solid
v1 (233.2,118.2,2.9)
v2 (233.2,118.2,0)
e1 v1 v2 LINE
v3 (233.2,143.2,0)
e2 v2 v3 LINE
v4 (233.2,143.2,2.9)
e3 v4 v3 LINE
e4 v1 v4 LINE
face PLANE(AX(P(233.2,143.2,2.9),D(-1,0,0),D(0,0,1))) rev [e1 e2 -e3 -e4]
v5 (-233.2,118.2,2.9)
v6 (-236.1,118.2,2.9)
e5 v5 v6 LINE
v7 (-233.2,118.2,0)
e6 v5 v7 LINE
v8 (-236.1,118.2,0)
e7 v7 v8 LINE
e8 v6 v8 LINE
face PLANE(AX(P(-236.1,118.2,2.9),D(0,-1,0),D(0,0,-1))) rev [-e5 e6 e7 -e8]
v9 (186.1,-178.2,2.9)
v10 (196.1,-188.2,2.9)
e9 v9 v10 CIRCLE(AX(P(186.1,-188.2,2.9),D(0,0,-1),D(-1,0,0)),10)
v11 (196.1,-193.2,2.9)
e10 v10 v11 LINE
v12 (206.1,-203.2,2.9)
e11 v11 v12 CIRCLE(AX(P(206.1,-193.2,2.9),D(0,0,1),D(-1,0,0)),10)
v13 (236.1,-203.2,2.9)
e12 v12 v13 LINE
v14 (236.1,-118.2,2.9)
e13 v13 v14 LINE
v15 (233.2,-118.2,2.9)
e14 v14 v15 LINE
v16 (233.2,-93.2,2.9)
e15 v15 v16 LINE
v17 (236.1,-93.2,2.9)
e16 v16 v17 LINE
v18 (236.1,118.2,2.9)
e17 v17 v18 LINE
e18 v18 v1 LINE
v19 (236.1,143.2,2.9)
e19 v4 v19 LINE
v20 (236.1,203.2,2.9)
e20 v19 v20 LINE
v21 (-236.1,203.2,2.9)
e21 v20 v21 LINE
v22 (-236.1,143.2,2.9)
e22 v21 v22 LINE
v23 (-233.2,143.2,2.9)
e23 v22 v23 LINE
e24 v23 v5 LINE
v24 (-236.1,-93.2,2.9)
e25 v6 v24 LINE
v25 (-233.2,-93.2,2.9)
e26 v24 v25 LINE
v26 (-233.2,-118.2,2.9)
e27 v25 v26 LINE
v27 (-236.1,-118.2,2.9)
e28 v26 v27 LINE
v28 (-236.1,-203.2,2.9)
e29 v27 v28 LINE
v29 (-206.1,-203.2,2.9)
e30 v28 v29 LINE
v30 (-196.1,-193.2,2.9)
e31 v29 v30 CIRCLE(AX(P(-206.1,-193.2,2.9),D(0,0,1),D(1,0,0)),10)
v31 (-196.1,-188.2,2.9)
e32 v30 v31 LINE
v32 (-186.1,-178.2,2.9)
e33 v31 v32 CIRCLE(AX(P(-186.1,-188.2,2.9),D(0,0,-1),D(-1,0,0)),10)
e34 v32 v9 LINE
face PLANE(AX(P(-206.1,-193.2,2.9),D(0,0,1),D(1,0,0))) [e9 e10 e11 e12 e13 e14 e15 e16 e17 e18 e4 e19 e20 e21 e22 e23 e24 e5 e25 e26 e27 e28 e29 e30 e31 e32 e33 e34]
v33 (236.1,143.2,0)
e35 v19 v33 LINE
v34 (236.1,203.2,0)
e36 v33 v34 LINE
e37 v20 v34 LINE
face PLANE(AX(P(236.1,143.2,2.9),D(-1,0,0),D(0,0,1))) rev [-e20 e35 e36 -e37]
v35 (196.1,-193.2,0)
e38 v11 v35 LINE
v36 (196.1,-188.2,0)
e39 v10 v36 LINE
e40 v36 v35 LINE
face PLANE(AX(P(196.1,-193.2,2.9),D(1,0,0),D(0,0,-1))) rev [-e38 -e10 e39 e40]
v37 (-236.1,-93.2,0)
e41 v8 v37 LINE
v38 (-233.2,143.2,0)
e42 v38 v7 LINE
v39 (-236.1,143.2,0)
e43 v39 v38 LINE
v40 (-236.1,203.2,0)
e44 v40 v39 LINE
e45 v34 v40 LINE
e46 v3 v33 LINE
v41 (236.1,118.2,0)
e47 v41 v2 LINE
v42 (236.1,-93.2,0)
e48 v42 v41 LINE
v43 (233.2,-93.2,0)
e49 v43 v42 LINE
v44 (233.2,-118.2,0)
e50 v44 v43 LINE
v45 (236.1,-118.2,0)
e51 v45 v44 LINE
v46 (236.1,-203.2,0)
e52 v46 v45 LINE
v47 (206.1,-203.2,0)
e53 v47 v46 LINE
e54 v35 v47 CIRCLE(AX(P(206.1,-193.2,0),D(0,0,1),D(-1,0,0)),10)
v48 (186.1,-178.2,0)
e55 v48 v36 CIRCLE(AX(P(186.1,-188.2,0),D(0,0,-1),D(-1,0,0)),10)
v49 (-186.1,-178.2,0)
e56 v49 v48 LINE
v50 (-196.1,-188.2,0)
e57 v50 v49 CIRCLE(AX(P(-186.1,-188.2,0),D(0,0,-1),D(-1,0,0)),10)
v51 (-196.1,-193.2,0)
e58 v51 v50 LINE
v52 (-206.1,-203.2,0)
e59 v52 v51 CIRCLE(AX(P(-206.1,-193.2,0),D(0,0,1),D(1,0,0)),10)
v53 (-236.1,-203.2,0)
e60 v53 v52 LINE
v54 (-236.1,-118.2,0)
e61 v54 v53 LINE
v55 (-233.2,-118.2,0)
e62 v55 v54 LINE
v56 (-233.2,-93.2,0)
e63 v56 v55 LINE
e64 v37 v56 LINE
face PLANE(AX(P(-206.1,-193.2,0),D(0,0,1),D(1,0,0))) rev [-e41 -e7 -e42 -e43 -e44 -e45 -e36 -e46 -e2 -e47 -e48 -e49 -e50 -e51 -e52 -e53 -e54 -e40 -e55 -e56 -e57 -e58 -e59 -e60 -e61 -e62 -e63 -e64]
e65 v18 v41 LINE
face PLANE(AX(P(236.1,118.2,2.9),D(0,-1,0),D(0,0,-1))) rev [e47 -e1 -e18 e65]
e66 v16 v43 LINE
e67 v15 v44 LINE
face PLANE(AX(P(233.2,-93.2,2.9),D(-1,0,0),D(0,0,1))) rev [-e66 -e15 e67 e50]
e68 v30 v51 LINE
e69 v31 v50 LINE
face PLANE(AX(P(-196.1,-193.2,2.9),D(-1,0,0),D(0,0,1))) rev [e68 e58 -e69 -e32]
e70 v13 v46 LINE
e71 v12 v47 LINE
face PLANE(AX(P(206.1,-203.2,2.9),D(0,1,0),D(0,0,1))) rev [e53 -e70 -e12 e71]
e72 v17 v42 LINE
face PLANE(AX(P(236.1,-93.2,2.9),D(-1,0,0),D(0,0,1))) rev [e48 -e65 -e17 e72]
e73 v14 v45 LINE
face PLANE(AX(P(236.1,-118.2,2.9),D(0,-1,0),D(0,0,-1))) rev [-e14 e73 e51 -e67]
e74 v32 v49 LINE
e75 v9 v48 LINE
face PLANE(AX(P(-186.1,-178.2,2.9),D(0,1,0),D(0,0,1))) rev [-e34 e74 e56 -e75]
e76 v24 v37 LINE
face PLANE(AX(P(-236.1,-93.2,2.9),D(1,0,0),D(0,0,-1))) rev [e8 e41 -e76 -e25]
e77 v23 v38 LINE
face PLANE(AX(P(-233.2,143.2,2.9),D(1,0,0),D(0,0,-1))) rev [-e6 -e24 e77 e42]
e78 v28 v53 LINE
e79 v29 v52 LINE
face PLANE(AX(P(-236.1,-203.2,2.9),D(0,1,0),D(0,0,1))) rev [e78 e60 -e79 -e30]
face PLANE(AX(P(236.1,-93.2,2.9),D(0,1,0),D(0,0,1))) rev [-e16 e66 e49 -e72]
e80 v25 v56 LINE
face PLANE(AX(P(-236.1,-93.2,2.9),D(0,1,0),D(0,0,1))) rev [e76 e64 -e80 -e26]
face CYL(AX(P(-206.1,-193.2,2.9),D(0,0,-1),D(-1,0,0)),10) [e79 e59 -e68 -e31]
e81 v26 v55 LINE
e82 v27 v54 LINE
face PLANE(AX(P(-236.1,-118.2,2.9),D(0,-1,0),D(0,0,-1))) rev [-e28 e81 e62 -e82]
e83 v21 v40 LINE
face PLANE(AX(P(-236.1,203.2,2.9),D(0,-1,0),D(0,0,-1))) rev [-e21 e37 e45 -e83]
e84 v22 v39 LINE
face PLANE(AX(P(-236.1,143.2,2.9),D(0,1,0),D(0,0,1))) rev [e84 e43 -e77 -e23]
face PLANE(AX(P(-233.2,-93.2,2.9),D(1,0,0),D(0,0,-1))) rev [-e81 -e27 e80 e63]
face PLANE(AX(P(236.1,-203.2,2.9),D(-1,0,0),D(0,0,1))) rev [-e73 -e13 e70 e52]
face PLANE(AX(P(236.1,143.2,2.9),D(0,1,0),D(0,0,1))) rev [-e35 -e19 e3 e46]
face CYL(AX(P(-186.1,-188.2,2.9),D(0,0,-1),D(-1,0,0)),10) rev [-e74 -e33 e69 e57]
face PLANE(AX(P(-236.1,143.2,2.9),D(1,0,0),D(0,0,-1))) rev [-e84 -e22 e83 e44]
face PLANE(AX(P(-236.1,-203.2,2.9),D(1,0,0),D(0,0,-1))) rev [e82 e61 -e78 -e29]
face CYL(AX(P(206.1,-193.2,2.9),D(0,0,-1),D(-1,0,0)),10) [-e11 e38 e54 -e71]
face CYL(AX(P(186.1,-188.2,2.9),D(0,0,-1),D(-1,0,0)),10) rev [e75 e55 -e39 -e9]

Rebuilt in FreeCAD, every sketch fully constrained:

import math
import FreeCAD as App
import Part
import Sketcher
from FreeCAD import Vector

doc = App.newDocument("Part")
params = doc.addObject("Spreadsheet::Sheet", "Params")
for row, (alias, value) in enumerate([
    ("sketch1_radius", "10 mm"),
    ("sketch1_width", "30 mm"),
    ("sketch1_height", "85 mm"),
    ("sketch1_height2", "25 mm"),
    ("sketch1_height3", "5 mm"),
    ("pad1_length", "2.9 mm"),
], start=1):
    params.set(f"A{row}", alias)
    params.set(f"B{row}", "=" + value)
    params.setAlias(f"B{row}", alias)

body = doc.addObject("PartDesign::Body", "Body")

sketch1 = body.newObject("Sketcher::SketchObject", "Sketch")
sketch1.AttachmentSupport = (doc.getObject("XY_Plane"), [""])
sketch1.MapMode = "FlatFace"
sketch1.addGeometry([
    Part.LineSegment(Vector(206.1, -203.2, 0), Vector(236.1, -203.2, 0)),
    Part.LineSegment(Vector(236.1, -203.2, 0), Vector(236.1, -118.2, 0)),
    Part.LineSegment(Vector(236.1, -118.2, 0), Vector(233.2, -118.2, 0)),
    Part.LineSegment(Vector(233.2, -118.2, 0), Vector(233.2, -93.2, 0)),
    Part.LineSegment(Vector(233.2, -93.2, 0), Vector(236.1, -93.2, 0)),
    Part.LineSegment(Vector(236.1, -93.2, 0), Vector(236.1, 118.2, 0)),
    Part.LineSegment(Vector(236.1, 118.2, 0), Vector(233.2, 118.2, 0)),
    Part.LineSegment(Vector(233.2, 118.2, 0), Vector(233.2, 143.2, 0)),
    Part.LineSegment(Vector(233.2, 143.2, 0), Vector(236.1, 143.2, 0)),
    Part.LineSegment(Vector(236.1, 143.2, 0), Vector(236.1, 203.2, 0)),
    Part.LineSegment(Vector(236.1, 203.2, 0), Vector(-236.1, 203.2, 0)),
    Part.LineSegment(Vector(-236.1, 203.2, 0), Vector(-236.1, 143.2, 0)),
    Part.LineSegment(Vector(-236.1, 143.2, 0), Vector(-233.2, 143.2, 0)),
    Part.LineSegment(Vector(-233.2, 143.2, 0), Vector(-233.2, 118.2, 0)),
    Part.LineSegment(Vector(-233.2, 118.2, 0), Vector(-236.1, 118.2, 0)),
    Part.LineSegment(Vector(-236.1, 118.2, 0), Vector(-236.1, -93.2, 0)),
    Part.LineSegment(Vector(-236.1, -93.2, 0), Vector(-233.2, -93.2, 0)),
    Part.LineSegment(Vector(-233.2, -93.2, 0), Vector(-233.2, -118.2, 0)),
    Part.LineSegment(Vector(-233.2, -118.2, 0), Vector(-236.1, -118.2, 0)),
    Part.LineSegment(Vector(-236.1, -118.2, 0), Vector(-236.1, -203.2, 0)),
    Part.LineSegment(Vector(-236.1, -203.2, 0), Vector(-206.1, -203.2, 0)),
    Part.ArcOfCircle(Part.Circle(Vector(-206.1, -193.2, 0), Vector(0, 0, 1), 10), math.radians(-90), math.radians(0)),
    Part.LineSegment(Vector(-196.1, -193.2, 0), Vector(-196.1, -188.2, 0)),
    Part.ArcOfCircle(Part.Circle(Vector(-186.1, -188.2, 0), Vector(0, 0, 1), 10), math.radians(90), math.radians(180)),
    Part.LineSegment(Vector(-186.1, -178.2, 0), Vector(186.1, -178.2, 0)),
    Part.ArcOfCircle(Part.Circle(Vector(186.1, -188.2, 0), Vector(0, 0, 1), 10), math.radians(0), math.radians(90)),
    Part.LineSegment(Vector(196.1, -188.2, 0), Vector(196.1, -193.2, 0)),
    Part.ArcOfCircle(Part.Circle(Vector(206.1, -193.2, 0), Vector(0, 0, 1), 10), math.radians(180), math.radians(270)),
], False)
sketch1.addConstraint([
    Sketcher.Constraint("Coincident", 0, 2, 1, 1),
    Sketcher.Constraint("Coincident", 1, 2, 2, 1),
    Sketcher.Constraint("Coincident", 2, 2, 3, 1),
    Sketcher.Constraint("Coincident", 3, 2, 4, 1),
    Sketcher.Constraint("Coincident", 4, 2, 5, 1),
    Sketcher.Constraint("Coincident", 5, 2, 6, 1),
    Sketcher.Constraint("Coincident", 6, 2, 7, 1),
    Sketcher.Constraint("Coincident", 7, 2, 8, 1),
    Sketcher.Constraint("Coincident", 8, 2, 9, 1),
    Sketcher.Constraint("Coincident", 9, 2, 10, 1),
    Sketcher.Constraint("Coincident", 10, 2, 11, 1),
    Sketcher.Constraint("Coincident", 11, 2, 12, 1),
    Sketcher.Constraint("Coincident", 12, 2, 13, 1),
    Sketcher.Constraint("Coincident", 13, 2, 14, 1),
    Sketcher.Constraint("Coincident", 14, 2, 15, 1),
    Sketcher.Constraint("Coincident", 15, 2, 16, 1),
    Sketcher.Constraint("Coincident", 16, 2, 17, 1),
    Sketcher.Constraint("Coincident", 17, 2, 18, 1),
    Sketcher.Constraint("Coincident", 18, 2, 19, 1),
    Sketcher.Constraint("Coincident", 19, 2, 20, 1),
    Sketcher.Constraint("Tangent", 20, 2, 21, 1),
    Sketcher.Constraint("Tangent", 21, 2, 22, 1),
    Sketcher.Constraint("Tangent", 22, 2, 23, 2),
    Sketcher.Constraint("Tangent", 23, 1, 24, 1),
    Sketcher.Constraint("Tangent", 24, 2, 25, 2),
    Sketcher.Constraint("Tangent", 25, 1, 26, 1),
    Sketcher.Constraint("Tangent", 26, 2, 27, 1),
    Sketcher.Constraint("Tangent", 27, 2, 0, 1),
    Sketcher.Constraint("Horizontal", 0),
    Sketcher.Constraint("Vertical", 1),
    Sketcher.Constraint("Horizontal", 2),
    Sketcher.Constraint("Vertical", 3),
    Sketcher.Constraint("Horizontal", 4),
    Sketcher.Constraint("Vertical", 5),
    Sketcher.Constraint("Horizontal", 6),
    Sketcher.Constraint("Vertical", 7),
    Sketcher.Constraint("Horizontal", 8),
    Sketcher.Constraint("Vertical", 9),
    Sketcher.Constraint("Horizontal", 10),
    Sketcher.Constraint("Vertical", 11),
    Sketcher.Constraint("Horizontal", 12),
    Sketcher.Constraint("Vertical", 13),
    Sketcher.Constraint("Horizontal", 14),
    Sketcher.Constraint("Vertical", 15),
    Sketcher.Constraint("Horizontal", 16),
    Sketcher.Constraint("Vertical", 17),
    Sketcher.Constraint("Horizontal", 18),
    Sketcher.Constraint("Vertical", 19),
    Sketcher.Constraint("Horizontal", 20),
    Sketcher.Constraint("Vertical", 22),
    Sketcher.Constraint("Horizontal", 24),
    Sketcher.Constraint("Vertical", 26),
    Sketcher.Constraint("Equal", 21, 23),
    Sketcher.Constraint("Equal", 23, 25),
    Sketcher.Constraint("Equal", 25, 27),
    Sketcher.Constraint("Symmetric", 0, 2, 10, 2, -1, 1),
    Sketcher.Constraint("Symmetric", 2, 2, 13, 2, -1, 1),
    Sketcher.Constraint("Symmetric", 6, 2, 17, 2, -1, 1),
    Sketcher.Constraint("Symmetric", 9, 2, 19, 2, -1, 1),
    Sketcher.Constraint("Symmetric", 8, 2, 11, 2, -2),
    Sketcher.Constraint("Symmetric", 6, 2, 13, 2, -2),
    Sketcher.Constraint("Symmetric", 4, 2, 15, 2, -2),
    Sketcher.Constraint("Vertical", 1, 2, 4, 2),
    Sketcher.Constraint("Equal", 0, 20),
    Sketcher.Constraint("Equal", 3, 7),
    Sketcher.Constraint("Radius", 21, 10.0),
    Sketcher.Constraint("DistanceX", 0, 1, 0, 2, 30.0),
    Sketcher.Constraint("DistanceY", 1, 1, 1, 2, 85.0),
    Sketcher.Constraint("DistanceY", 3, 1, 3, 2, 25.0),
    Sketcher.Constraint("DistanceY", 22, 1, 22, 2, 5.0),
    Sketcher.Constraint("DistanceX", 2, 2, 2, 1, 2.9),
    Sketcher.Constraint("DistanceX", 10, 2, 10, 1, 472.2),
    Sketcher.Constraint("DistanceY", 5, 1, 5, 2, 211.4),
])
sketch1.setExpression("Constraints[65]", "Params.sketch1_radius")
sketch1.setExpression("Constraints[66]", "Params.sketch1_width")
sketch1.setExpression("Constraints[67]", "Params.sketch1_height")
sketch1.setExpression("Constraints[68]", "Params.sketch1_height2")
sketch1.setExpression("Constraints[69]", "Params.sketch1_height3")
pad1 = body.newObject("PartDesign::Pad", "Pad")
pad1.Profile = sketch1
pad1.setExpression("Length", "Params.pad1_length")

doc.recompute()
